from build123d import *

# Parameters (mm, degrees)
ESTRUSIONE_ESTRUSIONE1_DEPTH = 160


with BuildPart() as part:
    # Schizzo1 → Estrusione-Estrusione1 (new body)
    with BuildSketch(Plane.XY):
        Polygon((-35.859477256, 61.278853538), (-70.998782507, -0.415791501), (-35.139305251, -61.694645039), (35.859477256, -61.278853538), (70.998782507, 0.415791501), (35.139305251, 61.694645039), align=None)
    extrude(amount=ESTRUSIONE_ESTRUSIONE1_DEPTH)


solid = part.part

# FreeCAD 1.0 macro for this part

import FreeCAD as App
import Part
import Sketcher
from FreeCAD import Vector
Q = App.Units.Quantity


def add_polygon(sketch, points):
    """Adds a closed chain of lines whose ends are joined by coincident constraints."""
    first, n = sketch.GeometryCount, len(points)
    for a, b in zip(points, points[1:] + points[:1]):
        sketch.addGeometry(Part.LineSegment(App.Vector(*a, 0), App.Vector(*b, 0)), False)
    for i in range(n):
        sketch.addConstraint(Sketcher.Constraint("Coincident", first + i, 2, first + (i + 1) % n, 1))

doc = App.newDocument("Part")
body = doc.addObject("PartDesign::Body", "Body")

# Sketch on XY plane
sketch1 = body.newObject("Sketcher::SketchObject", "Sketch")
sketch1.AttachmentSupport = (doc.getObject("XY_Plane"), [""])
sketch1.MapMode = "FlatFace"
add_polygon(sketch1, [(-36, 61), (-71, 0), (-35, -62), (36, -61), (71, 0), (35, 62)])  # lines 0-5
sketch1.addConstraint([
    Sketcher.Constraint("Symmetric", 0, 2, 3, 2, -1, 1),
    Sketcher.Constraint("Symmetric", 1, 2, 4, 2, -1, 1),
    Sketcher.Constraint("Symmetric", 2, 2, 5, 2, -1, 1),
    Sketcher.Constraint("Equal", 0, 1),
    Sketcher.Constraint("Equal", 1, 2),
    Sketcher.Constraint("Distance", 0, Q("71 mm")),
    Sketcher.Constraint("DistanceY", 2, 2, 4, 2, Q("122.973499 mm")),
    Sketcher.Constraint("DistanceY", 0, 2, -1, 1, Q("0.415792 mm")),
    Sketcher.Constraint("DistanceY", 1, 2, 2, 2, Q("0.415792 mm")),
])
pad1 = body.newObject("PartDesign::Pad", "Pad")
pad1.Profile = sketch1
pad1.Length = 160

doc.recompute()
